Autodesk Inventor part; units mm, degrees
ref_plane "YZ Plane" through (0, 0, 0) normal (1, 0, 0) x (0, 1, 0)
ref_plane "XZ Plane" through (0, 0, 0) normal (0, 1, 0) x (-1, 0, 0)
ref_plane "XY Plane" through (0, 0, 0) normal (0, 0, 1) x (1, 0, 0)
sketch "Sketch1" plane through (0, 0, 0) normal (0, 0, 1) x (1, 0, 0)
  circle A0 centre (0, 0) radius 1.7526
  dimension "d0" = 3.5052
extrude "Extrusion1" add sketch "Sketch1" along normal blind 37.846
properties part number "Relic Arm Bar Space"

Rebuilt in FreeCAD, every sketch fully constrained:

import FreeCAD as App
import Part
import Sketcher
from FreeCAD import Vector
Q = App.Units.Quantity

doc = App.newDocument("Part")
body = doc.addObject("PartDesign::Body", "Body")

sketch1 = body.newObject("Sketcher::SketchObject", "Sketch")
sketch1.AttachmentSupport = (doc.getObject("XY_Plane"), [""])
sketch1.MapMode = "FlatFace"
sketch1.addGeometry(Part.Circle(Vector(0, 0, 0), Vector(0, 0, 1), 1.8), False)
sketch1.addConstraint([
    Sketcher.Constraint("Coincident", 0, 3, -1, 1),
    Sketcher.Constraint("Diameter", 0, Q("0.138 in")),
])
pad1 = body.newObject("PartDesign::Pad", "Pad")
pad1.Profile = sketch1
pad1.Length = Q("1.49 in")

doc.recompute()
